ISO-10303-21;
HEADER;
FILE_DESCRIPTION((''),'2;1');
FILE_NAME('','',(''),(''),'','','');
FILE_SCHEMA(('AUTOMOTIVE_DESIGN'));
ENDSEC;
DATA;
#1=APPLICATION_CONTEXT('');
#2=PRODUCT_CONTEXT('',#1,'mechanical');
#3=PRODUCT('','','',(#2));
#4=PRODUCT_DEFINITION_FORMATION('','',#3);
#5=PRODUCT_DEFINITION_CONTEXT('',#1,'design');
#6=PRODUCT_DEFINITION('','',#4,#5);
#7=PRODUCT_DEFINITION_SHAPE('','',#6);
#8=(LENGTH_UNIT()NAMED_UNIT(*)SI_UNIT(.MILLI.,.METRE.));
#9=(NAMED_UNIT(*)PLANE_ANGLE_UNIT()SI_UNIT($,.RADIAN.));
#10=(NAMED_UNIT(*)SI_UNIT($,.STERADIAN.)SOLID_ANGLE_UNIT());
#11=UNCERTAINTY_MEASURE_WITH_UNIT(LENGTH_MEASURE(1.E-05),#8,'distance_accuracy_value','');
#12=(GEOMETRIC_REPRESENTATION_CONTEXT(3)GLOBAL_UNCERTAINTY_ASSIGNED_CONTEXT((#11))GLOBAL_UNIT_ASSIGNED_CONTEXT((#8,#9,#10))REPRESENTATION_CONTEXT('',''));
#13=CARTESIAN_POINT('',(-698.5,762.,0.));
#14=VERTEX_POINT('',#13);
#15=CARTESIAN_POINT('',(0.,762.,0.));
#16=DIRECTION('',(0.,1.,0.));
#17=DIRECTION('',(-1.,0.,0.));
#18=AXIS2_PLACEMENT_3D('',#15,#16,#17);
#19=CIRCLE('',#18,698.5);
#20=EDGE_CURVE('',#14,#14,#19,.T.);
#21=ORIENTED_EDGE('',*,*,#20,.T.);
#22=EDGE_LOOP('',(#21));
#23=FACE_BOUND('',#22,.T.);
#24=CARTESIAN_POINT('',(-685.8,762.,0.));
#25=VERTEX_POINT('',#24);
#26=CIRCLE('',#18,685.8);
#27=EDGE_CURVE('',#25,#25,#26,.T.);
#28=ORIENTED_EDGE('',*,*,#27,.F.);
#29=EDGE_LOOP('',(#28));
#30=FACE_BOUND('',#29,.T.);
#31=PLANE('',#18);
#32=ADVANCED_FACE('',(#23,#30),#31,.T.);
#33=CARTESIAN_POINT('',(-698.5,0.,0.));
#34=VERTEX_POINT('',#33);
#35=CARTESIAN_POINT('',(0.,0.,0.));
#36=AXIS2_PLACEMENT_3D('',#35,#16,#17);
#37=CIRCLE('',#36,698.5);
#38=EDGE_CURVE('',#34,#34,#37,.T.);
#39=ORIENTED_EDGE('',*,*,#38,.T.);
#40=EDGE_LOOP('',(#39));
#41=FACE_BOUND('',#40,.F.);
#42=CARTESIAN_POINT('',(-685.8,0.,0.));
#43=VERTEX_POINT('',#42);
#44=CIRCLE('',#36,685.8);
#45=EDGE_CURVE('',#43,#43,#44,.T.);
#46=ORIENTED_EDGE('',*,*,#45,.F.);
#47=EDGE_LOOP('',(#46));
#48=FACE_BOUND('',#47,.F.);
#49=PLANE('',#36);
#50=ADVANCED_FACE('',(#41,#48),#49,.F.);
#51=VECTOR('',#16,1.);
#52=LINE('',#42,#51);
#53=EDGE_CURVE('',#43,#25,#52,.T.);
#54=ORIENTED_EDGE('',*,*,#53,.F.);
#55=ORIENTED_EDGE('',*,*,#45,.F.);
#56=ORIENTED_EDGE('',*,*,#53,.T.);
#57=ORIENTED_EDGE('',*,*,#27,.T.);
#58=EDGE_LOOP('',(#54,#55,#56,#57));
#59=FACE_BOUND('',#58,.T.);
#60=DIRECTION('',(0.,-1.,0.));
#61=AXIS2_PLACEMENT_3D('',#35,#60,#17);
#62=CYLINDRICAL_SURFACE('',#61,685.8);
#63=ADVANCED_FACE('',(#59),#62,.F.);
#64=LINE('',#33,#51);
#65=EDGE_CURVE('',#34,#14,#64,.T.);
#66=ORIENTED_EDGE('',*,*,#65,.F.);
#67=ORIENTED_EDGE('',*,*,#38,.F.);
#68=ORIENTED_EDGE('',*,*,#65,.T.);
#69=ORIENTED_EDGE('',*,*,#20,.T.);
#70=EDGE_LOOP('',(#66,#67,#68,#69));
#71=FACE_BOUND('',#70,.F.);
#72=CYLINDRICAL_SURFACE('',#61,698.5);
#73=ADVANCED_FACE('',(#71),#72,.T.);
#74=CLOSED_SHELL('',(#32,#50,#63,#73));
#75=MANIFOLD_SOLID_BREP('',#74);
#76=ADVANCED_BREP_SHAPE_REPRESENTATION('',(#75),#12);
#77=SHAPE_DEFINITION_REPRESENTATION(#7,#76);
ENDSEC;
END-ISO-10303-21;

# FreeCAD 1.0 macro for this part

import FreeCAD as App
import Part
import Sketcher
Q = App.Units.Quantity

doc = App.newDocument("Part")
body = doc.addObject("PartDesign::Body", "Body")

sketch1 = doc.addObject("Sketcher::SketchObject", "Sketch")
body.addObject(sketch1)
sketch1.AttachmentSupport = (doc.XZ_Plane, [""])
sketch1.MapMode = "FlatFace"
sketch1.addGeometry(Part.Circle(App.Vector(0, 0, 0), App.Vector(0, 0, 1), 698), False)
sketch1.addGeometry(Part.Circle(App.Vector(0, 0, 0), App.Vector(0, 0, 1), 686), False)
sketch1.addConstraint(Sketcher.Constraint("Coincident", 0, 3, -1, 1))
sketch1.addConstraint(Sketcher.Constraint("Coincident", 1, 3, -1, 1))
sketch1.addConstraint(Sketcher.Constraint("Diameter", 0, Q("55 in")))
sketch1.addConstraint(Sketcher.Constraint("Diameter", 1, Q("54 in")))
pad1 = doc.addObject("PartDesign::Pad", "Pad")
body.addObject(pad1)
pad1.Profile = sketch1
pad1.Length = Q("30 in")
pad1.Reversed = True

doc.recompute()
